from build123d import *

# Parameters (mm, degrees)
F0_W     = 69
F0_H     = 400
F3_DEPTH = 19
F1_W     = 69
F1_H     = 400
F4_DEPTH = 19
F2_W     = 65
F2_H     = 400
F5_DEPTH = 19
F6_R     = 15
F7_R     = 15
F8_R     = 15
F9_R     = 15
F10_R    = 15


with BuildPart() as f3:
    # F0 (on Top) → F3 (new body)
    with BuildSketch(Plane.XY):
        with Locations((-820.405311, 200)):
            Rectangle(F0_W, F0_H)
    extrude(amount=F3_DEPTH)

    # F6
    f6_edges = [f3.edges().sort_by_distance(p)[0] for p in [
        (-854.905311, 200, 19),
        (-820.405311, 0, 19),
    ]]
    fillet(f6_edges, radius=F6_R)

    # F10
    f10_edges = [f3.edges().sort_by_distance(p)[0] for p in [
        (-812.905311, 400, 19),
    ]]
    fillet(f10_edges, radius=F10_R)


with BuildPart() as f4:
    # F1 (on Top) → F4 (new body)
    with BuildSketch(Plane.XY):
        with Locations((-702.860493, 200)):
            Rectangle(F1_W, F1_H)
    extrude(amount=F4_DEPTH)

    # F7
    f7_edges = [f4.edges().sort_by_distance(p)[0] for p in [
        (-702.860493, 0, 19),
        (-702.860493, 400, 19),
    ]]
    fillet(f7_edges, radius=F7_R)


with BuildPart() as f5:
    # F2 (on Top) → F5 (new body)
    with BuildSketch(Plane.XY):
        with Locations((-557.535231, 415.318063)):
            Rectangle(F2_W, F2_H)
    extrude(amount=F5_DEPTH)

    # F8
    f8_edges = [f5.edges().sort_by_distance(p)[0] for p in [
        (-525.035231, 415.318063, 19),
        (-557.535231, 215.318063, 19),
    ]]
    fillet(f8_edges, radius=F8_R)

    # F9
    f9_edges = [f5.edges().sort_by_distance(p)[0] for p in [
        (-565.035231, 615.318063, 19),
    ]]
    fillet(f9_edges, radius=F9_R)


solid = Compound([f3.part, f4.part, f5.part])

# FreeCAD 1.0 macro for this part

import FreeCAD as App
import Part
import Sketcher


def edges_at(feature, points):
    """Names of the edges that pass closest to the given points."""
    edges = feature.Shape.Edges
    near = lambda p: min(range(len(edges)), key=lambda i: edges[i].distToShape(Part.Vertex(*p))[0])
    return sorted({f"Edge{near(p) + 1}" for p in points})

doc = App.newDocument("Part")
body = doc.addObject("PartDesign::Body", "Body")

# Sketch on XY plane
sketch1 = body.newObject("Sketcher::SketchObject", "Sketch")
sketch1.AttachmentSupport = (doc.getObject("XY_Plane"), [""])
sketch1.MapMode = "FlatFace"
sketch1.addGeometry(Part.LineSegment(App.Vector(-855, 400, 0), App.Vector(-855, 0, 0)), False)
sketch1.addGeometry(Part.LineSegment(App.Vector(-855, 0, 0), App.Vector(-786, 0, 0)), False)
sketch1.addGeometry(Part.LineSegment(App.Vector(-786, 0, 0), App.Vector(-786, 400, 0)), False)
sketch1.addGeometry(Part.LineSegment(App.Vector(-786, 400, 0), App.Vector(-855, 400, 0)), False)
sketch1.addConstraint(Sketcher.Constraint("Coincident", 0, 2, 1, 1))
sketch1.addConstraint(Sketcher.Constraint("Coincident", 1, 2, 2, 1))
sketch1.addConstraint(Sketcher.Constraint("Coincident", 2, 2, 3, 1))
sketch1.addConstraint(Sketcher.Constraint("Coincident", 3, 2, 0, 1))
sketch1.addConstraint(Sketcher.Constraint("Vertical", 0))
sketch1.addConstraint(Sketcher.Constraint("Horizontal", 1))
sketch1.addConstraint(Sketcher.Constraint("Vertical", 2))
sketch1.addConstraint(Sketcher.Constraint("Horizontal", 3))
sketch1.addConstraint(Sketcher.Constraint("PointOnObject", 0, 2, -1))
sketch1.addConstraint(Sketcher.Constraint("DistanceX", 1, 1, 1, 2, 69.0))
sketch1.addConstraint(Sketcher.Constraint("DistanceY", 0, 2, 0, 1, 400.0))
sketch1.addConstraint(Sketcher.Constraint("DistanceX", 0, 2, -1, 1, 854.905311))
pad1 = body.newObject("PartDesign::Pad", "Pad")
pad1.Profile = sketch1
pad1.Length = 19
doc.recompute()

fillet = body.newObject("PartDesign::Fillet", "Fillet")
fillet.Base = (pad1, edges_at(pad1, [(-854.905, 200, 19), (-820.405, 0, 19)]))
fillet.Radius = 15
doc.recompute()

fillet2 = body.newObject("PartDesign::Fillet", "Fillet001")
fillet2.Base = (fillet, edges_at(fillet, [(-812.905, 400, 19)]))
fillet2.Radius = 15
body2 = doc.addObject("PartDesign::Body", "Body001")

# Sketch on XY plane
sketch2 = body2.newObject("Sketcher::SketchObject", "Sketch001")
sketch2.AttachmentSupport = (doc.getObject("XY_Plane001"), [""])
sketch2.MapMode = "FlatFace"
sketch2.addGeometry(Part.LineSegment(App.Vector(-737, 400, 0), App.Vector(-737, 0, 0)), False)
sketch2.addGeometry(Part.LineSegment(App.Vector(-737, 0, 0), App.Vector(-668, 0, 0)), False)
sketch2.addGeometry(Part.LineSegment(App.Vector(-668, 0, 0), App.Vector(-668, 400, 0)), False)
sketch2.addGeometry(Part.LineSegment(App.Vector(-668, 400, 0), App.Vector(-737, 400, 0)), False)
sketch2.addConstraint(Sketcher.Constraint("Coincident", 0, 2, 1, 1))
sketch2.addConstraint(Sketcher.Constraint("Coincident", 1, 2, 2, 1))
sketch2.addConstraint(Sketcher.Constraint("Coincident", 2, 2, 3, 1))
sketch2.addConstraint(Sketcher.Constraint("Coincident", 3, 2, 0, 1))
sketch2.addConstraint(Sketcher.Constraint("Vertical", 0))
sketch2.addConstraint(Sketcher.Constraint("Horizontal", 1))
sketch2.addConstraint(Sketcher.Constraint("Vertical", 2))
sketch2.addConstraint(Sketcher.Constraint("Horizontal", 3))
sketch2.addConstraint(Sketcher.Constraint("PointOnObject", 0, 2, -1))
sketch2.addConstraint(Sketcher.Constraint("DistanceX", 1, 1, 1, 2, 69.0))
sketch2.addConstraint(Sketcher.Constraint("DistanceY", 0, 2, 0, 1, 400.0))
sketch2.addConstraint(Sketcher.Constraint("DistanceX", 0, 2, -1, 1, 737.360493))
pad2 = body2.newObject("PartDesign::Pad", "Pad001")
pad2.Profile = sketch2
pad2.Length = 19
doc.recompute()

fillet3 = body2.newObject("PartDesign::Fillet", "Fillet002")
fillet3.Base = (pad2, edges_at(pad2, [(-702.86, 0, 19), (-702.86, 400, 19)]))
fillet3.Radius = 15
body3 = doc.addObject("PartDesign::Body", "Body002")

# Sketch on XY plane
sketch3 = body3.newObject("Sketcher::SketchObject", "Sketch002")
sketch3.AttachmentSupport = (doc.getObject("XY_Plane002"), [""])
sketch3.MapMode = "FlatFace"
sketch3.addGeometry(Part.LineSegment(App.Vector(-590, 615, 0), App.Vector(-590, 215, 0)), False)
sketch3.addGeometry(Part.LineSegment(App.Vector(-590, 215, 0), App.Vector(-525, 215, 0)), False)
sketch3.addGeometry(Part.LineSegment(App.Vector(-525, 215, 0), App.Vector(-525, 615, 0)), False)
sketch3.addGeometry(Part.LineSegment(App.Vector(-525, 615, 0), App.Vector(-590, 615, 0)), False)
sketch3.addConstraint(Sketcher.Constraint("Coincident", 0, 2, 1, 1))
sketch3.addConstraint(Sketcher.Constraint("Coincident", 1, 2, 2, 1))
sketch3.addConstraint(Sketcher.Constraint("Coincident", 2, 2, 3, 1))
sketch3.addConstraint(Sketcher.Constraint("Coincident", 3, 2, 0, 1))
sketch3.addConstraint(Sketcher.Constraint("Vertical", 0))
sketch3.addConstraint(Sketcher.Constraint("Horizontal", 1))
sketch3.addConstraint(Sketcher.Constraint("Vertical", 2))
sketch3.addConstraint(Sketcher.Constraint("Horizontal", 3))
sketch3.addConstraint(Sketcher.Constraint("DistanceX", 1, 1, 1, 2, 65.0))
sketch3.addConstraint(Sketcher.Constraint("DistanceY", 0, 2, 0, 1, 400.0))
sketch3.addConstraint(Sketcher.Constraint("DistanceX", 0, 2, -1, 1, 590.035231))
sketch3.addConstraint(Sketcher.Constraint("DistanceY", -1, 1, 0, 2, 215.318063))
pad3 = body3.newObject("PartDesign::Pad", "Pad002")
pad3.Profile = sketch3
pad3.Length = 19
doc.recompute()

fillet4 = body3.newObject("PartDesign::Fillet", "Fillet003")
fillet4.Base = (pad3, edges_at(pad3, [(-525.035, 415.318, 19), (-557.535, 215.318, 19)]))
fillet4.Radius = 15
doc.recompute()

fillet5 = body3.newObject("PartDesign::Fillet", "Fillet004")
fillet5.Base = (fillet4, edges_at(fillet4, [(-565.035, 615.318, 19)]))
fillet5.Radius = 15

doc.recompute()
